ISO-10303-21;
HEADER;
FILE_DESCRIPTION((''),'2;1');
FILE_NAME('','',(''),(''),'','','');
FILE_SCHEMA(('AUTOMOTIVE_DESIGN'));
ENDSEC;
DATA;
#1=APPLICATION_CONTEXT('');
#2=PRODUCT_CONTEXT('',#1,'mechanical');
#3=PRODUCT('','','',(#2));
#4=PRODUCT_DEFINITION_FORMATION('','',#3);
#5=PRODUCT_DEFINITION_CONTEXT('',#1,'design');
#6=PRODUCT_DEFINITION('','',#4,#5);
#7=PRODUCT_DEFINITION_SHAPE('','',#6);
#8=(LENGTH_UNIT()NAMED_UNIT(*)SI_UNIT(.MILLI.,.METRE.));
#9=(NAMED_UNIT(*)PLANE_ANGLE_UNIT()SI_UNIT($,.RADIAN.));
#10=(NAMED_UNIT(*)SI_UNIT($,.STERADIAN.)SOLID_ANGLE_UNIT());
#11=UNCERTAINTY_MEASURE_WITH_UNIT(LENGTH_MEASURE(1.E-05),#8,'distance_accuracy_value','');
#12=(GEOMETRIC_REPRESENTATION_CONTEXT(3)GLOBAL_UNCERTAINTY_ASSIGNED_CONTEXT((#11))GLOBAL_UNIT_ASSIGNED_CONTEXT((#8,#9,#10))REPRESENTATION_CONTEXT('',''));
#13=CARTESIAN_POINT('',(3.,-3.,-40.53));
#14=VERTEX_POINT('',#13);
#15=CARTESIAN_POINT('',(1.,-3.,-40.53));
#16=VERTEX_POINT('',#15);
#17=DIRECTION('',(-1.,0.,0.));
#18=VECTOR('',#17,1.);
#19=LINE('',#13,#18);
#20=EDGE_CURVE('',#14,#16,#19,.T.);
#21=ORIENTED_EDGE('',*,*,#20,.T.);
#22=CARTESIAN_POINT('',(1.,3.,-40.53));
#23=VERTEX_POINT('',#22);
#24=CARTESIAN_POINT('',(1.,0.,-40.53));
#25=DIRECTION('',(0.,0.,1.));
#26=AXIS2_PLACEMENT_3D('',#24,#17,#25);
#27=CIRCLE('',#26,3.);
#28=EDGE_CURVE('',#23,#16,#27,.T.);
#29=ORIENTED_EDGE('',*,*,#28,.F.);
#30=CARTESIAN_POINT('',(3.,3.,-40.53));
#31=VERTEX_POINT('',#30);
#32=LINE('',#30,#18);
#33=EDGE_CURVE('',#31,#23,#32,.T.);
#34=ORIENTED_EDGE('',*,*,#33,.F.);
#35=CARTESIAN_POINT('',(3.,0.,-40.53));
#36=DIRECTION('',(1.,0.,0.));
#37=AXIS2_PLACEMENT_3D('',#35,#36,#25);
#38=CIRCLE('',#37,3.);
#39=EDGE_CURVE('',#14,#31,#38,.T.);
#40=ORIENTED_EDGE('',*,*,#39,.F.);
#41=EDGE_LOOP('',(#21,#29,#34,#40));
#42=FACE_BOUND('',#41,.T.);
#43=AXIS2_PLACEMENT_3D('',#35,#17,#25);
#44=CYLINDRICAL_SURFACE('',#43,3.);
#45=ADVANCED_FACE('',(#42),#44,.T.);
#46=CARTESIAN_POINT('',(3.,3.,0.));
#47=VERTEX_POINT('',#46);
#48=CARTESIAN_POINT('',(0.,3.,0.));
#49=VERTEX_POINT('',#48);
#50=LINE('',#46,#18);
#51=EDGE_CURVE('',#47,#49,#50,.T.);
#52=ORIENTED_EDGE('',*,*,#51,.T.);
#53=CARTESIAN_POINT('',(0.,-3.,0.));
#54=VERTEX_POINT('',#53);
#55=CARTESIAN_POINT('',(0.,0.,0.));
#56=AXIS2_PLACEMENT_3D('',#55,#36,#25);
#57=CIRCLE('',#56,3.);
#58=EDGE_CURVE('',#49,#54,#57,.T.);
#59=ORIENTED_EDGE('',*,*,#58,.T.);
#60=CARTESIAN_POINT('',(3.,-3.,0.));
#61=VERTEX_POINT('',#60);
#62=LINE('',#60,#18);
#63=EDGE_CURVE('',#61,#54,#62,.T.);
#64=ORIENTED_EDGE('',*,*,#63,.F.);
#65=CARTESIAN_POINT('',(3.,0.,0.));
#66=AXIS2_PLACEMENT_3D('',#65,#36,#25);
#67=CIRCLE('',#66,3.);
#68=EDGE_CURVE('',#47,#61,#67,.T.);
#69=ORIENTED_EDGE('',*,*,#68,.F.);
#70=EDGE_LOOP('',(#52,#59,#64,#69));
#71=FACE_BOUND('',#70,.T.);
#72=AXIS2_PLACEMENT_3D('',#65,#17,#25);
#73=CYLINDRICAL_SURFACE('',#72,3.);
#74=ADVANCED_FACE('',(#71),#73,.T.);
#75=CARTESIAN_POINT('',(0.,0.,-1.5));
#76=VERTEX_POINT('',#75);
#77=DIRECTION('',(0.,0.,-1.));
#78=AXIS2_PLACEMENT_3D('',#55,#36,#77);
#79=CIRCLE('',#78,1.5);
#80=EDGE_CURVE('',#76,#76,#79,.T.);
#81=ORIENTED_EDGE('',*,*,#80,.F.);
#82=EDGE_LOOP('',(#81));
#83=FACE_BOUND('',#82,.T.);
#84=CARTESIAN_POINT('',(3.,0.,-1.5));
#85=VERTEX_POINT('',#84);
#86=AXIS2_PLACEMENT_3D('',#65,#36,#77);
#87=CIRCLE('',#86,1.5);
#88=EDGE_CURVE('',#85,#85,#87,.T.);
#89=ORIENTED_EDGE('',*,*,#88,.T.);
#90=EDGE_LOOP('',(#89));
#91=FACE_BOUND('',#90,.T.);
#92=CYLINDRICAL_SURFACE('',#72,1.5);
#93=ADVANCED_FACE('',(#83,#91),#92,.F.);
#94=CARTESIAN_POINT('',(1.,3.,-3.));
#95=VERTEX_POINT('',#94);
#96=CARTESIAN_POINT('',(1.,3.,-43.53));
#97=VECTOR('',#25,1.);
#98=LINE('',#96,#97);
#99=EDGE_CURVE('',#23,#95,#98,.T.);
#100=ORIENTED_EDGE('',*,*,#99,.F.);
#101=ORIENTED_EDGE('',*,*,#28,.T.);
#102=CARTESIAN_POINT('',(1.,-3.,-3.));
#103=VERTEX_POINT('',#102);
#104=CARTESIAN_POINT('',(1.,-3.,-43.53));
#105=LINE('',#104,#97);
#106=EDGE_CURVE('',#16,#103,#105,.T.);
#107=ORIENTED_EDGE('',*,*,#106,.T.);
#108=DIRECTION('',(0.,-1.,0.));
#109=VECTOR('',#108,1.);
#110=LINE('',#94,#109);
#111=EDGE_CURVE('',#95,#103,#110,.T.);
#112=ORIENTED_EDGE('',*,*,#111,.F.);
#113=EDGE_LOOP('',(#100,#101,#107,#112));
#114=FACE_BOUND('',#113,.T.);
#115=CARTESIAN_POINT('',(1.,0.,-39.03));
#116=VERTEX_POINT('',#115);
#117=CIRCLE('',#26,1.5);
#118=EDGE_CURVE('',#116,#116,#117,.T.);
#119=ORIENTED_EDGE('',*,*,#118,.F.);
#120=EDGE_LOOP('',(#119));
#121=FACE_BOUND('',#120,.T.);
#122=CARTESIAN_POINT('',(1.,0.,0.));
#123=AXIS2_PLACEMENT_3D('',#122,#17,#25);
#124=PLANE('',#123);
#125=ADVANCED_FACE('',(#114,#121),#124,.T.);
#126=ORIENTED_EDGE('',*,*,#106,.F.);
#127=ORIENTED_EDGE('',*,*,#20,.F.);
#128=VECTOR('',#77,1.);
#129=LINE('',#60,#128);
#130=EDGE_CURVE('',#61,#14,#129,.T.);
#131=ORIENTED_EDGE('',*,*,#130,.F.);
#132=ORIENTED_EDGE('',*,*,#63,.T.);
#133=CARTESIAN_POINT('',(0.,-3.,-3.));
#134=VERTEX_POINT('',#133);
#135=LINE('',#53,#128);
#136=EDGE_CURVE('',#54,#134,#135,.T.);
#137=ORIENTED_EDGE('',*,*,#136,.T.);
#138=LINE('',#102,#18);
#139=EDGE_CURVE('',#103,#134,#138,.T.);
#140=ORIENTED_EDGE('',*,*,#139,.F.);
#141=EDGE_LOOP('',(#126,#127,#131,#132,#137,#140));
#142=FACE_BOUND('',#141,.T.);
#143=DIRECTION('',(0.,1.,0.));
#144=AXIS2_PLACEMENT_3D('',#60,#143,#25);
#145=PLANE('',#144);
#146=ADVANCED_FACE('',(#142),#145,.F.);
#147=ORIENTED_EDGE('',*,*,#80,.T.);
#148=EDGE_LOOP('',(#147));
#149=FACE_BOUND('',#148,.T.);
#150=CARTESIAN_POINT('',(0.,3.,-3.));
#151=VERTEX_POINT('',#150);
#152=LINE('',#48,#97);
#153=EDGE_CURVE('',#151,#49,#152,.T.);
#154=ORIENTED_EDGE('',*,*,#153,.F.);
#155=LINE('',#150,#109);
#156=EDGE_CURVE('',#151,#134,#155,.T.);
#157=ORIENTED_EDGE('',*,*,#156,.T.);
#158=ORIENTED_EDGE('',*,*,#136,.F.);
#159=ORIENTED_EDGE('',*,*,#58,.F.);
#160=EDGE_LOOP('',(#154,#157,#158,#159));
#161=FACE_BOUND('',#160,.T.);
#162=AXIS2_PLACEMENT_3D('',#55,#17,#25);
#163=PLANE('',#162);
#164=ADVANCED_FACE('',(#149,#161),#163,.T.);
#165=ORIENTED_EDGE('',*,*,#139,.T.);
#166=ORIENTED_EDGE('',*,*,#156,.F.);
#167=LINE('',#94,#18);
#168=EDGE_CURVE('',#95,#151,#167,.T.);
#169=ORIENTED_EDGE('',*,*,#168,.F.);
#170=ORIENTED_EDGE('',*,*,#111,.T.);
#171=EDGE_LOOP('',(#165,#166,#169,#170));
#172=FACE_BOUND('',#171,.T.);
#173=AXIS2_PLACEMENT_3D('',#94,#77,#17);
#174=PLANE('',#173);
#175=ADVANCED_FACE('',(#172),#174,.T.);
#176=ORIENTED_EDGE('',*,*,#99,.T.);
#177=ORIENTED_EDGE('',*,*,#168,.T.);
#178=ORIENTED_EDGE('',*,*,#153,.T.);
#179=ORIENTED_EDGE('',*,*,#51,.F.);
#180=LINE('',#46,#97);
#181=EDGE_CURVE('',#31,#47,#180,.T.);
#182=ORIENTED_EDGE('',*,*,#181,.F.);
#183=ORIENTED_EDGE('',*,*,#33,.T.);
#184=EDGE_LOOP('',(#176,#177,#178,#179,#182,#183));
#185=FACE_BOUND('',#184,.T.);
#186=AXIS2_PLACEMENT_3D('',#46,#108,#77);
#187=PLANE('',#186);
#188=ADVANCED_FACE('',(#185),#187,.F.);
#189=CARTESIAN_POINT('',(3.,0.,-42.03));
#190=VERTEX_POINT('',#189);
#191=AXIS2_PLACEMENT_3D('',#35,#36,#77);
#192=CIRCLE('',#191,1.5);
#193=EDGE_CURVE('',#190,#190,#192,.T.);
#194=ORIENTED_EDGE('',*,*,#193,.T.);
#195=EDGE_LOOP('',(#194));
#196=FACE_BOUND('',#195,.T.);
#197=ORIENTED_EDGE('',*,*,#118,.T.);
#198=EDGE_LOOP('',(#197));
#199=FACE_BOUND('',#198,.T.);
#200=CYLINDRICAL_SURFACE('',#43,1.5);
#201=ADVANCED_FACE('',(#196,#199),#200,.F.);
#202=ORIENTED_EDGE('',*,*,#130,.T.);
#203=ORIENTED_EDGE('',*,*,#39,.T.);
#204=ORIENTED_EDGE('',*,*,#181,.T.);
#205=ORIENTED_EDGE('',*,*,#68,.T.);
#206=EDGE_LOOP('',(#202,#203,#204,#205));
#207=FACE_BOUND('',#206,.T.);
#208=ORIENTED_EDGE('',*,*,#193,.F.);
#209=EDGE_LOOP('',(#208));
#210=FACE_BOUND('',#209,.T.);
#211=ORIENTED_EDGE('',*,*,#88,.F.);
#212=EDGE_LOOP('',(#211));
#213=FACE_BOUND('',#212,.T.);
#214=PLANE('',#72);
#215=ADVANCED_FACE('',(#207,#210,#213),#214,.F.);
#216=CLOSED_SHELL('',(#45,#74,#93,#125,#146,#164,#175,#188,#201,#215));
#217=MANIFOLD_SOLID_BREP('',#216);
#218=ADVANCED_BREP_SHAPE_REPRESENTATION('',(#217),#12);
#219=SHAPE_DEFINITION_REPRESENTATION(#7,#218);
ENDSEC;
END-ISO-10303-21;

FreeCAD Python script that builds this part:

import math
import FreeCAD as App
import Part
import Sketcher

doc = App.newDocument("Part")
body = doc.addObject("PartDesign::Body", "Body")

sketch1 = body.newObject("Sketcher::SketchObject", "Sketch")
sketch1.AttachmentSupport = (doc.getObject("YZ_Plane"), [""])
sketch1.MapMode = "FlatFace"
sketch1.addGeometry([
    Part.LineSegment(App.Vector(-3, 0, 0), App.Vector(-3, -40.53, 0)),
    Part.ArcOfCircle(Part.Circle(App.Vector(0, -40.53, 0), App.Vector(0, 0, 1), 3), math.radians(180), math.radians(360)),
    Part.LineSegment(App.Vector(3, -40.53, 0), App.Vector(3, 0, 0)),
    Part.ArcOfCircle(Part.Circle(App.Vector(0, 0, 0), App.Vector(0, 0, 1), 3), math.radians(0), math.radians(180)),
    Part.Circle(App.Vector(0, 0, 0), App.Vector(0, 0, 1), 1.5),
    Part.Circle(App.Vector(0, -40.53, 0), App.Vector(0, 0, 1), 1.5),
], False)
sketch1.addConstraint([
    Sketcher.Constraint("Tangent", 0, 2, 1, 1),
    Sketcher.Constraint("Tangent", 1, 2, 2, 1),
    Sketcher.Constraint("Tangent", 2, 2, 3, 1),
    Sketcher.Constraint("Tangent", 3, 2, 0, 1),
    Sketcher.Constraint("Vertical", 0),
    Sketcher.Constraint("Vertical", 2),
    Sketcher.Constraint("Coincident", 3, 3, -1, 1),
    Sketcher.Constraint("Coincident", 4, 3, -1, 1),
    Sketcher.Constraint("Coincident", 5, 3, 1, 3),
    Sketcher.Constraint("Equal", 4, 5),
    Sketcher.Constraint("Diameter", 4, 3.0),
    Sketcher.Constraint("Radius", 1, 3.0),
    Sketcher.Constraint("DistanceY", 0, 2, 0, 1, 40.53),
])
pad1 = body.newObject("PartDesign::Pad", "Pad")
pad1.Profile = sketch1
pad1.Length = 3

sketch2 = body.newObject("Sketcher::SketchObject", "Sketch001")
sketch2.AttachmentSupport = (doc.getObject("YZ_Plane"), [""])
sketch2.MapMode = "FlatFace"
sketch2.addGeometry([
    Part.LineSegment(App.Vector(3, -43.53, 0), App.Vector(-3, -43.53, 0)),
    Part.LineSegment(App.Vector(-3, -43.53, 0), App.Vector(-3, -3, 0)),
    Part.LineSegment(App.Vector(-3, -3, 0), App.Vector(3, -3, 0)),
    Part.LineSegment(App.Vector(3, -3, 0), App.Vector(3, -43.53, 0)),
], False)
sketch2.addConstraint([
    Sketcher.Constraint("Coincident", 0, 2, 1, 1),
    Sketcher.Constraint("Coincident", 1, 2, 2, 1),
    Sketcher.Constraint("Coincident", 2, 2, 3, 1),
    Sketcher.Constraint("Coincident", 3, 2, 0, 1),
    Sketcher.Constraint("Horizontal", 0),
    Sketcher.Constraint("Vertical", 1),
    Sketcher.Constraint("Horizontal", 2),
    Sketcher.Constraint("Vertical", 3),
    Sketcher.Constraint("DistanceX", 0, 2, 0, 1, 6.0),
    Sketcher.Constraint("DistanceX", 0, 2, -1, 1, 3.0),
    Sketcher.Constraint("DistanceY", 1, 2, -1, 1, 3.0),
    Sketcher.Constraint("DistanceY", 1, 1, 1, 2, 40.53),
])
pocket1 = body.newObject("PartDesign::Pocket", "Pocket")
pocket1.Profile = sketch2
pocket1.Length = 1
pocket1.Reversed = True

doc.recompute()
